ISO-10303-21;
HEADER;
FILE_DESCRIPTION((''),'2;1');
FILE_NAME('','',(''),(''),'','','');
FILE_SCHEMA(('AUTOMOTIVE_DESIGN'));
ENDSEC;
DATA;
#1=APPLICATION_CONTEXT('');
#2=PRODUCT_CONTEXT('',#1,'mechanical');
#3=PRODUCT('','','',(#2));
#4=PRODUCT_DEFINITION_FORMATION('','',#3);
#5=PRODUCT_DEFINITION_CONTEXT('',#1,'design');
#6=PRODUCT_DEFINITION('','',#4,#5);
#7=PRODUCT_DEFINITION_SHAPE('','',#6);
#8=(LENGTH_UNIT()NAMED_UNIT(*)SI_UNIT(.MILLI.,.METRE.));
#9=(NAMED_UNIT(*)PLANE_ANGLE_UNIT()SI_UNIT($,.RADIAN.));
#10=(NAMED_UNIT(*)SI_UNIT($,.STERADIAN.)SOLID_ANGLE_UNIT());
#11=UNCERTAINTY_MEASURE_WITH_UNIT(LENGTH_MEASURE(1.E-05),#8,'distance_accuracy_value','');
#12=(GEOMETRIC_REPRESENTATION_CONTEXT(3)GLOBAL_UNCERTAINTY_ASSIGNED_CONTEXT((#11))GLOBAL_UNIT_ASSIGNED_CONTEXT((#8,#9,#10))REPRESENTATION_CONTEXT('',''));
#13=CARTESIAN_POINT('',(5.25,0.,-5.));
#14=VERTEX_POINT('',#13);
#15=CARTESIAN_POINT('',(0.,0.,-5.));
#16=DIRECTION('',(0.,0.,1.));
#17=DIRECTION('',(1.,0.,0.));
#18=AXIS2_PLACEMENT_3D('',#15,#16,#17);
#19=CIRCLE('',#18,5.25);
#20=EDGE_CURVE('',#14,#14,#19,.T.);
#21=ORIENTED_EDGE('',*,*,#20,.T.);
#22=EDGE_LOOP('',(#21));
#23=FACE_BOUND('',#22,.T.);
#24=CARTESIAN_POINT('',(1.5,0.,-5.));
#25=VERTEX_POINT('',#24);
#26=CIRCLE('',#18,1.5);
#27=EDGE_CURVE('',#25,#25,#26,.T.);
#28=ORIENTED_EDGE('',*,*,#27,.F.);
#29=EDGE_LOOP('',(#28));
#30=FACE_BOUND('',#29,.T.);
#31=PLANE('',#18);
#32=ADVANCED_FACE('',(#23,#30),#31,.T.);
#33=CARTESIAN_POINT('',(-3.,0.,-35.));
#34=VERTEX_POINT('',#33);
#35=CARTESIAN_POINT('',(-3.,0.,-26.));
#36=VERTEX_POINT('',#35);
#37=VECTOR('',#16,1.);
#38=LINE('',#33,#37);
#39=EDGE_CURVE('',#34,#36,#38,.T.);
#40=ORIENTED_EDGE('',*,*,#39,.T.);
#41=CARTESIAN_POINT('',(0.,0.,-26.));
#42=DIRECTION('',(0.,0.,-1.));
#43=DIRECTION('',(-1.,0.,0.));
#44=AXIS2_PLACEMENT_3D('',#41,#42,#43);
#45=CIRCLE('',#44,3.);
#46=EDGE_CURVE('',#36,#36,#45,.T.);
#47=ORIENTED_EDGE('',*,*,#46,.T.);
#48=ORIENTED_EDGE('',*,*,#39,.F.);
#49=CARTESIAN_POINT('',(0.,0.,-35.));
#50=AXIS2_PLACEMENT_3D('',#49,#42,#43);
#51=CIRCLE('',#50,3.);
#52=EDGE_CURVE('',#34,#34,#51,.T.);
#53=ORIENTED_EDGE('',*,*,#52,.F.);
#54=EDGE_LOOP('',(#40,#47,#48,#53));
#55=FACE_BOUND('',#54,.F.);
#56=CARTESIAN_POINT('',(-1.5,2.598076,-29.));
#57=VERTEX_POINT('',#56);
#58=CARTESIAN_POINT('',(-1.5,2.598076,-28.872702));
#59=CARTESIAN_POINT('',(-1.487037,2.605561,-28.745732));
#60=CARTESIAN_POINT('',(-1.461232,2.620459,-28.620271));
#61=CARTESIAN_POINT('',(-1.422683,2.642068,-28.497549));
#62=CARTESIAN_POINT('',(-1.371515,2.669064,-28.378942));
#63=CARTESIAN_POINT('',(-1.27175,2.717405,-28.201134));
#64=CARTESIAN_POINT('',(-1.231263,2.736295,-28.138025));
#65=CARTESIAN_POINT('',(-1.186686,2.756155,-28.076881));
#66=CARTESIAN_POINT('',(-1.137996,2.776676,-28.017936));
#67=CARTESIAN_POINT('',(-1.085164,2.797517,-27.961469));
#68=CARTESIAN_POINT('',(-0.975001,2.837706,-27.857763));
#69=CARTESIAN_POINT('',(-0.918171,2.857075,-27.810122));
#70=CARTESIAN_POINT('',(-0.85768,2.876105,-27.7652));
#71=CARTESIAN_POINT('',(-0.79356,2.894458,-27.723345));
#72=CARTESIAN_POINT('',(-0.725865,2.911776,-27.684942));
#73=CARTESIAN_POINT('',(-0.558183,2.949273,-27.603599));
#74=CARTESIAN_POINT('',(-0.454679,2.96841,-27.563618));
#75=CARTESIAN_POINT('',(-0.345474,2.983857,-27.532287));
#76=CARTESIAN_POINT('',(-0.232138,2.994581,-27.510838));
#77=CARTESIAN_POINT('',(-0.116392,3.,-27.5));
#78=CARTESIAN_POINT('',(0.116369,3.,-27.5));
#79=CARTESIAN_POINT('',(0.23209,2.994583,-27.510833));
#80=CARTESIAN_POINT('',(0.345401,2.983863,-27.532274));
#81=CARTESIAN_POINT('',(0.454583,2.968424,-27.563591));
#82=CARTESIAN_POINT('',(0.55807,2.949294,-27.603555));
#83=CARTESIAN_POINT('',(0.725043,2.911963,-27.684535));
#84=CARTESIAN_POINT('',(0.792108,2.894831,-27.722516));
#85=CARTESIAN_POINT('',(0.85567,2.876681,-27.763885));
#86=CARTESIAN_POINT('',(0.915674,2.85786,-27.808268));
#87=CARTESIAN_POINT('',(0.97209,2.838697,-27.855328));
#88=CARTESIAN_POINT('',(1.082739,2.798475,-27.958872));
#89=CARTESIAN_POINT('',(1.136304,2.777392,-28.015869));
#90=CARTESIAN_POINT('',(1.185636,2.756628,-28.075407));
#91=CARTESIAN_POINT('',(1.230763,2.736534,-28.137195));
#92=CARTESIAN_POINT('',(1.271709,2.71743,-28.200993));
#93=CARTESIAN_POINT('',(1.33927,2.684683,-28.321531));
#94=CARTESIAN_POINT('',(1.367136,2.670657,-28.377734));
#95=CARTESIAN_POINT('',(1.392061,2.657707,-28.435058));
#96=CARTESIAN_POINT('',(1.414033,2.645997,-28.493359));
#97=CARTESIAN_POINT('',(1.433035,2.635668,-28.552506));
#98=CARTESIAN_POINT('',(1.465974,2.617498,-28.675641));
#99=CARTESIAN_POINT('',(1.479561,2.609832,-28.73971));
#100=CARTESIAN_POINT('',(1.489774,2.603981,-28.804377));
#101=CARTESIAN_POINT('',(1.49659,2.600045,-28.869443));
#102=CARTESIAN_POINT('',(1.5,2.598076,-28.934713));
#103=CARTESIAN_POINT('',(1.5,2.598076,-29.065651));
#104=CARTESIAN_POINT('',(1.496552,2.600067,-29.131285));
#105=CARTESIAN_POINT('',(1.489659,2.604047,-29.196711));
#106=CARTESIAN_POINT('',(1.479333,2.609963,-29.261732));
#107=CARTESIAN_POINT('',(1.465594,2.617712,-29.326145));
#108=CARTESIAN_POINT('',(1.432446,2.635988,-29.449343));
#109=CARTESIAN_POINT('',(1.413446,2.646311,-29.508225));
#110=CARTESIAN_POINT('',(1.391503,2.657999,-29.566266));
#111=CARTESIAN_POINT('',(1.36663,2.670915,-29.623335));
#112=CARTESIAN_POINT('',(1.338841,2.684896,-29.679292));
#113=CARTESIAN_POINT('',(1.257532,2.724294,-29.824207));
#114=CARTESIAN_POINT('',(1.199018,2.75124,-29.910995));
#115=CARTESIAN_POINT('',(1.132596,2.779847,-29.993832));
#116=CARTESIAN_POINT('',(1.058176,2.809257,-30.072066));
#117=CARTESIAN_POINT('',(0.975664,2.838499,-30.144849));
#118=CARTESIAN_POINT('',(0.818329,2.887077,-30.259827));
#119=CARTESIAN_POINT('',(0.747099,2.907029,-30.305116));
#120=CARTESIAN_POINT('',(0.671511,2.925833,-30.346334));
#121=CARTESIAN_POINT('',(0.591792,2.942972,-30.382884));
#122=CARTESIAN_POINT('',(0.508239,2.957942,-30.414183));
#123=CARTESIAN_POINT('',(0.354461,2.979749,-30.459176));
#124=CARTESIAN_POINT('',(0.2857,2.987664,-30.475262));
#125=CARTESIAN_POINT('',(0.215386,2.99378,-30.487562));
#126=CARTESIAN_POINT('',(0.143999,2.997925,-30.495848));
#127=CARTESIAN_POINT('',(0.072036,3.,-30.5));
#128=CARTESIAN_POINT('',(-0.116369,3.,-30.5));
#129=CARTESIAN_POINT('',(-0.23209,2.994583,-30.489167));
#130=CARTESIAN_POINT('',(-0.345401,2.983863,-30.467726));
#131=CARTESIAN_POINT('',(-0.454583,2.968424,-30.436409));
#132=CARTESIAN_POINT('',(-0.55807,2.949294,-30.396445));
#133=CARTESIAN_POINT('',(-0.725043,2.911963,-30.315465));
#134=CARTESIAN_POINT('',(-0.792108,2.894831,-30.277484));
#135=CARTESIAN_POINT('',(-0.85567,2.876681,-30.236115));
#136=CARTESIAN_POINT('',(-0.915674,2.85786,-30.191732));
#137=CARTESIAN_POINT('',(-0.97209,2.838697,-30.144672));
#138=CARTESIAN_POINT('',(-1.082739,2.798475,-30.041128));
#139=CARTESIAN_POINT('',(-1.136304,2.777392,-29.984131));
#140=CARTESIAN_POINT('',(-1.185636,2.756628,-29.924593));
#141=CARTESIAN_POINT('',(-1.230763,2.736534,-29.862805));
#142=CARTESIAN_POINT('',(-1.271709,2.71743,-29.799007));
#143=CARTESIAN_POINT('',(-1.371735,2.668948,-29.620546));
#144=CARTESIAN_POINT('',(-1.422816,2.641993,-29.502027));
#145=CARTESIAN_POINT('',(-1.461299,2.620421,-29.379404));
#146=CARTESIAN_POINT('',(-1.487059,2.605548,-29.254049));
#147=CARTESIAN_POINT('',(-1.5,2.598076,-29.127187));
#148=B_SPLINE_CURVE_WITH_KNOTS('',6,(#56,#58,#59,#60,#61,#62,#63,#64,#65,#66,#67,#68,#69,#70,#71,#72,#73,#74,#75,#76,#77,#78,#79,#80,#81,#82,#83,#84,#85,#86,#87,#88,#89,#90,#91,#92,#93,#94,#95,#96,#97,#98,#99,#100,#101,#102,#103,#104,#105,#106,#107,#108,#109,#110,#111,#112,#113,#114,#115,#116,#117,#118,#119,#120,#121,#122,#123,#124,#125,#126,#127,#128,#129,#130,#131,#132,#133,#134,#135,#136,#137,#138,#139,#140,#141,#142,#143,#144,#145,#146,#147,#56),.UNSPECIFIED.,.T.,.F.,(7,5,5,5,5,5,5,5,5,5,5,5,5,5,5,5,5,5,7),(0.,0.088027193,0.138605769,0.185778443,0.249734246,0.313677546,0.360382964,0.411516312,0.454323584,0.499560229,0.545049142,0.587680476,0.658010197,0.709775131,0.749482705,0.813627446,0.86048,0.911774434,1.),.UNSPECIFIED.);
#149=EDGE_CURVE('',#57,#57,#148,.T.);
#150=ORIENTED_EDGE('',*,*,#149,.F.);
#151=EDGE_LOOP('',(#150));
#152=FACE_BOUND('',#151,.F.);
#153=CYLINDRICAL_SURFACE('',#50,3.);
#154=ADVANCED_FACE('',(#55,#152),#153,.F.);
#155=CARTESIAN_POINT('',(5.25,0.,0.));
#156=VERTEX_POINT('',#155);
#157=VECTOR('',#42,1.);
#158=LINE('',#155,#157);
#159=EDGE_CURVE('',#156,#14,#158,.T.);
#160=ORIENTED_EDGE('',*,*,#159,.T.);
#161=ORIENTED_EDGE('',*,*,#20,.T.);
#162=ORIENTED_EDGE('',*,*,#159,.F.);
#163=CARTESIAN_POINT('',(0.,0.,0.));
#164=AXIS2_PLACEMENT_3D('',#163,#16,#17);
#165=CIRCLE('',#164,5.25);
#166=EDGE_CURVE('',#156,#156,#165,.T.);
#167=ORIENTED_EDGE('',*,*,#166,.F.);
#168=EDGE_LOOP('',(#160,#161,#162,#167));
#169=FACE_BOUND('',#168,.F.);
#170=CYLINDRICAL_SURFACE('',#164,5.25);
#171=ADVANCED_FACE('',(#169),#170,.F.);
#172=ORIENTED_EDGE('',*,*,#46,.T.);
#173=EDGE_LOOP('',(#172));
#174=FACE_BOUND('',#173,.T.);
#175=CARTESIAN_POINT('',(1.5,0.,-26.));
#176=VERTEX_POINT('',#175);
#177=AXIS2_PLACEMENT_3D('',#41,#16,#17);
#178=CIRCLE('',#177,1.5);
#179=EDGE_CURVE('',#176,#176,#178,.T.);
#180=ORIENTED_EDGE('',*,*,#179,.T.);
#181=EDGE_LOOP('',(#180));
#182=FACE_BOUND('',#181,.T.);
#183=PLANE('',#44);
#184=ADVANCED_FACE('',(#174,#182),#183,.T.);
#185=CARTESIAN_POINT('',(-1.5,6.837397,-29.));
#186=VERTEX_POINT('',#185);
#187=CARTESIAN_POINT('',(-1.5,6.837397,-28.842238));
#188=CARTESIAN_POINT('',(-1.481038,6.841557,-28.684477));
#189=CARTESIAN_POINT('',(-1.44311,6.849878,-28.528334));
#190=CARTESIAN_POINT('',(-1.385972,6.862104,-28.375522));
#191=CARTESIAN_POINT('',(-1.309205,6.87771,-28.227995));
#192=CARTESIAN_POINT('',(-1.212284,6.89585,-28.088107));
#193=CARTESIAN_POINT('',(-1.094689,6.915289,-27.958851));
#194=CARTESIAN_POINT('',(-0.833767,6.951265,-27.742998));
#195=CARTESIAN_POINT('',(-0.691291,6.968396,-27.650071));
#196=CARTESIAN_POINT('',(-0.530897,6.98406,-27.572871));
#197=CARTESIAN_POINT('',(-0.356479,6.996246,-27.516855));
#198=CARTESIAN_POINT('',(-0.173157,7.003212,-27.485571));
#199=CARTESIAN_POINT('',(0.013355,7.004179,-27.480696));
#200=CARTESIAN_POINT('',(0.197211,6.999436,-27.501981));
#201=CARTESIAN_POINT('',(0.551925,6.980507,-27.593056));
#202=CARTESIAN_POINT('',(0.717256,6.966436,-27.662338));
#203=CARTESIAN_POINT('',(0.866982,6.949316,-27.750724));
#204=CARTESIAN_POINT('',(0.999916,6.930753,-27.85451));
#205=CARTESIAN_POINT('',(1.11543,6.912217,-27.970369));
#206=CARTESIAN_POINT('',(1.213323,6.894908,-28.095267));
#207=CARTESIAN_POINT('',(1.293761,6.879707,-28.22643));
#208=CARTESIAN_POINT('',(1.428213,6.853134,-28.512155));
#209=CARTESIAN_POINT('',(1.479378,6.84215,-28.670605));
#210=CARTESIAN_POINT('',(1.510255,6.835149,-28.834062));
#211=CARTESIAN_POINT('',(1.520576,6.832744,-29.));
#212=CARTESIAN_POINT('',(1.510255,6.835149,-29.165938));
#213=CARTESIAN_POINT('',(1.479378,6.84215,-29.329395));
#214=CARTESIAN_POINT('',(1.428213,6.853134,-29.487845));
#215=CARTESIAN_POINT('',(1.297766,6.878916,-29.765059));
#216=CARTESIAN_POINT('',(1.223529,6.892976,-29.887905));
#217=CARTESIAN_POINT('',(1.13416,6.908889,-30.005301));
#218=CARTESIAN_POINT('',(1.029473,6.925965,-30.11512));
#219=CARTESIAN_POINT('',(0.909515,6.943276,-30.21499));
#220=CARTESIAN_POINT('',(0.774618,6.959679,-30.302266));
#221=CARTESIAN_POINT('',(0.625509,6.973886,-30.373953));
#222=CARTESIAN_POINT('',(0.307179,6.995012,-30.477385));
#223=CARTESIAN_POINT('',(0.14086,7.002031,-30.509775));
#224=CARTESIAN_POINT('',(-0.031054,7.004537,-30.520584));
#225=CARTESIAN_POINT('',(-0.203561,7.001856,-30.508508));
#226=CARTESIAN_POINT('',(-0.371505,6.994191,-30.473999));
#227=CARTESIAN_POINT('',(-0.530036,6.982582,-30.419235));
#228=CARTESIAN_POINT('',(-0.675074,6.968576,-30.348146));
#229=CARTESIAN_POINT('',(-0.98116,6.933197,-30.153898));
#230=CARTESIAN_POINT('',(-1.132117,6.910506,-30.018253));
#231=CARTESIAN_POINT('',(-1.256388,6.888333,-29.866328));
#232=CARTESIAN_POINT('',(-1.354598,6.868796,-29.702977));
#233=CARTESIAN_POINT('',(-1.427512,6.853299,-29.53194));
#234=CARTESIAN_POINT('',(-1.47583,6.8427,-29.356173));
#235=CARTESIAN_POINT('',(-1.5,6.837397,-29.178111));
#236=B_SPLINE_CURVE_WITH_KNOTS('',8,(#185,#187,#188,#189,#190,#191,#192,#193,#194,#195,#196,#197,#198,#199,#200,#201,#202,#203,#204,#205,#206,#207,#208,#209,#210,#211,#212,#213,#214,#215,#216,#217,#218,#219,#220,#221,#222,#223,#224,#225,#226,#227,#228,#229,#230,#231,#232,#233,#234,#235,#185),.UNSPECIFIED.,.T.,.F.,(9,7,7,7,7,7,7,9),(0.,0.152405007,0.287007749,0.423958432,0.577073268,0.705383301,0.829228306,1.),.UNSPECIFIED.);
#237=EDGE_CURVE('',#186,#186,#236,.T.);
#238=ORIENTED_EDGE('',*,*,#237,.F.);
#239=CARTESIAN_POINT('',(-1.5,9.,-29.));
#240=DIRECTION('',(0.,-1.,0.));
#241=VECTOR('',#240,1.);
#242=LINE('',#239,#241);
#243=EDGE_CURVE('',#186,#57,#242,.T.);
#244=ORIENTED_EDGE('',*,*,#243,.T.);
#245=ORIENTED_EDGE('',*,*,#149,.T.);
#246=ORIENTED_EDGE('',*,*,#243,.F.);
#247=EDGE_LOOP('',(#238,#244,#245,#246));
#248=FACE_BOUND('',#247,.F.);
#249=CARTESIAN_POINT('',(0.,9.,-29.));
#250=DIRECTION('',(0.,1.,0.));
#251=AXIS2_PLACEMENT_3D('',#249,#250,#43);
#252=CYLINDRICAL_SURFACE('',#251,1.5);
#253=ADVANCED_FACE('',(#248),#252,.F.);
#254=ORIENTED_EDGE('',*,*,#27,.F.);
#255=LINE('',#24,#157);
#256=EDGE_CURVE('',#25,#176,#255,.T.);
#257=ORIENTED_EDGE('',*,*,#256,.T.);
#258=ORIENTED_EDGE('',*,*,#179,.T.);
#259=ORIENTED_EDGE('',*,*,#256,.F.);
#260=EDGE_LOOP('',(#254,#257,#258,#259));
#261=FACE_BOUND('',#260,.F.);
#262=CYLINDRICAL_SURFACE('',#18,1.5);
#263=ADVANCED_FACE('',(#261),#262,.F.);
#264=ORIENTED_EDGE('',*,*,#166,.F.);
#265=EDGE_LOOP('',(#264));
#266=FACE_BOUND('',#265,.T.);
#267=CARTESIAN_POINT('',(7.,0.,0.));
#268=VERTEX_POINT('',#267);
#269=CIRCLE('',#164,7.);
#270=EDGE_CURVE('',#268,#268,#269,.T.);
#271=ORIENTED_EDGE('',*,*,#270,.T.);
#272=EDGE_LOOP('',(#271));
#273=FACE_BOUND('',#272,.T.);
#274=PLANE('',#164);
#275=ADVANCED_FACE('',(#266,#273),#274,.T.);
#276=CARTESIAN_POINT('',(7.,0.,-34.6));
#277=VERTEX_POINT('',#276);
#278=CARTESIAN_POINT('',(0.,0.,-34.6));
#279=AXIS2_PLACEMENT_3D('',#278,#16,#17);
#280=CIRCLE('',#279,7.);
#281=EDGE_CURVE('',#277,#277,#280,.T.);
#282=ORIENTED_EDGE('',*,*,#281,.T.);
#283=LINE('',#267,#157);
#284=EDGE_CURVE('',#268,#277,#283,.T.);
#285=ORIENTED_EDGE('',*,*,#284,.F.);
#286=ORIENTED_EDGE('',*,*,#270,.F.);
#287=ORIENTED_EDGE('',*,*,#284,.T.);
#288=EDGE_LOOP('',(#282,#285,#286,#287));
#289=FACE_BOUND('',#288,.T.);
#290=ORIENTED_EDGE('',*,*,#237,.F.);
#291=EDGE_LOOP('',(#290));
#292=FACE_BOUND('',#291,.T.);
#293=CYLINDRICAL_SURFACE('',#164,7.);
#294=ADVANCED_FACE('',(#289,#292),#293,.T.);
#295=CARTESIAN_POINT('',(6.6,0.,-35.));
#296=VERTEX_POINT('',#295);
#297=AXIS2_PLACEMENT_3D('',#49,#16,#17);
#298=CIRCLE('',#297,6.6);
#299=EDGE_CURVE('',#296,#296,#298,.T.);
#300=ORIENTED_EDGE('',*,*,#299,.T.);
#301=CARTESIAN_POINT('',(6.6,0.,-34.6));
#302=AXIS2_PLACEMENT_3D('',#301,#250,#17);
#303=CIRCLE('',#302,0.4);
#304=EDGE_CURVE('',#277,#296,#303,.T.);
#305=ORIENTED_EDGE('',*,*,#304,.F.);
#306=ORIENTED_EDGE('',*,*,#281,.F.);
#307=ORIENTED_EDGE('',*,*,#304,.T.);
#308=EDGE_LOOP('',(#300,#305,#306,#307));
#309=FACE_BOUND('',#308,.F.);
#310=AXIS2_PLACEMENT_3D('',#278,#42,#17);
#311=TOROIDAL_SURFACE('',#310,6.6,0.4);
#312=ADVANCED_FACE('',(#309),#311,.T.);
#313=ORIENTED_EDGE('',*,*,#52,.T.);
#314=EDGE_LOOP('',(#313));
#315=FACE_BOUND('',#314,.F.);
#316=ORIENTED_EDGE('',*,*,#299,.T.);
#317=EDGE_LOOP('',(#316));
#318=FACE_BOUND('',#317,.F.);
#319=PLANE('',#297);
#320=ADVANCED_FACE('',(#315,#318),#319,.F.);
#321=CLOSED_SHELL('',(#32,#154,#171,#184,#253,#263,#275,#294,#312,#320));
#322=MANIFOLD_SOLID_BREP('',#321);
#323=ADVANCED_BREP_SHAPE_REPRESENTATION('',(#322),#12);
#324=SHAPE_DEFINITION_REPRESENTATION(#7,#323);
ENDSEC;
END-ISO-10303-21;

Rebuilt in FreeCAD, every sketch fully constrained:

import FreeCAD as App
import Part
import Sketcher
Q = App.Units.Quantity


def edges_at(feature, points):
    """Names of the edges that pass closest to the given points."""
    edges = feature.Shape.Edges
    near = lambda p: min(range(len(edges)), key=lambda i: edges[i].distToShape(Part.Vertex(*p))[0])
    return sorted({f"Edge{near(p) + 1}" for p in points})

doc = App.newDocument("Part")
body = doc.addObject("PartDesign::Body", "Body")

# Sketch on XY plane
sketch1 = body.newObject("Sketcher::SketchObject", "Sketch")
sketch1.AttachmentSupport = (doc.getObject("XY_Plane"), [""])
sketch1.MapMode = "FlatFace"
sketch1.addGeometry(Part.Circle(App.Vector(0, 0, 0), App.Vector(0, 0, 1), 7), False)
sketch1.addConstraint(Sketcher.Constraint("Coincident", 0, 3, -1, 1))
sketch1.addConstraint(Sketcher.Constraint("Diameter", 0, Q("14 mm")))
pad1 = body.newObject("PartDesign::Pad", "Pad")
pad1.Profile = sketch1
pad1.Length = 35
pad1.Reversed = True

# Sketch on XY plane
sketch2 = body.newObject("Sketcher::SketchObject", "Sketch001")
sketch2.AttachmentSupport = (doc.getObject("XY_Plane"), [""])
sketch2.MapMode = "FlatFace"
sketch2.addGeometry(Part.Circle(App.Vector(0, 0, 0), App.Vector(0, 0, 1), 5), False)
sketch2.addConstraint(Sketcher.Constraint("Coincident", 0, 3, -1, 1))
sketch2.addConstraint(Sketcher.Constraint("Diameter", 0, Q("10.5 mm")))
pocket1 = body.newObject("PartDesign::Pocket", "Pocket")
pocket1.Profile = sketch2
pocket1.Length = 5

# Sketch on XY plane
sketch3 = body.newObject("Sketcher::SketchObject", "Sketch002")
sketch3.AttachmentSupport = (doc.getObject("XY_Plane"), [""])
sketch3.MapMode = "FlatFace"
sketch3.AttachmentOffset = App.Placement(App.Vector(0, 0, -5), App.Rotation())
sketch3.addGeometry(Part.Circle(App.Vector(0, 0, 0), App.Vector(0, 0, 1), 1.5), False)
sketch3.addConstraint(Sketcher.Constraint("Coincident", 0, 3, -1, 1))
sketch3.addConstraint(Sketcher.Constraint("Diameter", 0, Q("3 mm")))
pocket2 = body.newObject("PartDesign::Pocket", "Pocket001")
pocket2.Profile = sketch3
pocket2.Length = 30

# Sketch on XY plane
sketch4 = body.newObject("Sketcher::SketchObject", "Sketch003")
sketch4.AttachmentSupport = (doc.getObject("XY_Plane"), [""])
sketch4.MapMode = "FlatFace"
sketch4.AttachmentOffset = App.Placement(App.Vector(0, 0, -35), App.Rotation())
sketch4.addGeometry(Part.Circle(App.Vector(0, 0, 0), App.Vector(0, 0, 1), 3), False)
sketch4.addGeometry(Part.Circle(App.Vector(0, 0, 0), App.Vector(0, 0, 1), 1.5), False)
sketch4.addConstraint(Sketcher.Constraint("Coincident", 0, 3, -1, 1))
sketch4.addConstraint(Sketcher.Constraint("Coincident", 1, 3, -1, 1))
sketch4.addConstraint(Sketcher.Constraint("Diameter", 0, Q("6 mm")))
sketch4.addConstraint(Sketcher.Constraint("Diameter", 1, Q("3 mm")))
pocket3 = body.newObject("PartDesign::Pocket", "Pocket002")
pocket3.Profile = sketch4
pocket3.Length = 9
pocket3.Reversed = True

# Sketch on XZ plane
sketch5 = body.newObject("Sketcher::SketchObject", "Sketch004")
sketch5.AttachmentSupport = (doc.getObject("XZ_Plane"), [""])
sketch5.MapMode = "FlatFace"
sketch5.AttachmentOffset = App.Placement(App.Vector(0, 0, -9), App.Rotation())
sketch5.addGeometry(Part.Circle(App.Vector(0, -29, 0), App.Vector(0, 0, 1), 1.5), False)
sketch5.addConstraint(Sketcher.Constraint("PointOnObject", 0, 3, -2))
sketch5.addConstraint(Sketcher.Constraint("Diameter", 0, Q("3 mm")))
sketch5.addConstraint(Sketcher.Constraint("DistanceY", 0, 3, -1, 1, Q("29 mm")))
pocket4 = body.newObject("PartDesign::Pocket", "Pocket003")
pocket4.Profile = sketch5
pocket4.Length = 9
pocket4.Reversed = True
doc.recompute()

fillet = body.newObject("PartDesign::Fillet", "Fillet")
fillet.Base = (pocket4, edges_at(pocket4, [(-7, 0, -35)]))
fillet.Radius = 0.4

doc.recompute()
